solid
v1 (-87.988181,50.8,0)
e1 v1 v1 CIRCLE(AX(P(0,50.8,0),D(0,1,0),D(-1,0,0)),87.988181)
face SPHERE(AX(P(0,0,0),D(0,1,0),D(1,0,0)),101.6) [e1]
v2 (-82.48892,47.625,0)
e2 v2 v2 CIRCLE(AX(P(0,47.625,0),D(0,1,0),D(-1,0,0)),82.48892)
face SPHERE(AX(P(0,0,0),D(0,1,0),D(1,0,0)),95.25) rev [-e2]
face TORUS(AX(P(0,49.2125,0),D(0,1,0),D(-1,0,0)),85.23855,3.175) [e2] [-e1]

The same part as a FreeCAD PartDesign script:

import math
import FreeCAD as App
import Part
import Sketcher
Q = App.Units.Quantity

doc = App.newDocument("Part")
body = doc.addObject("PartDesign::Body", "Body")

# Sketch on XY plane
sketch1 = body.newObject("Sketcher::SketchObject", "Sketch")
sketch1.AttachmentSupport = (doc.getObject("XY_Plane"), [""])
sketch1.MapMode = "FlatFace"
sketch1.addGeometry(Part.LineSegment(App.Vector(0, 101.6, 0), App.Vector(0, 95.25, 0)), False)
sketch1.addGeometry(Part.ArcOfCircle(Part.Circle(App.Vector(0, 0, 0), App.Vector(0, 0, 1), 95.25), math.radians(30), math.radians(90)), False)
sketch1.addGeometry(Part.ArcOfCircle(Part.Circle(App.Vector(85.23855, 49.2125, 0), App.Vector(0, 0, 1), 3.175), math.radians(-150), math.radians(30)), False)
sketch1.addGeometry(Part.ArcOfCircle(Part.Circle(App.Vector(0, 0, 0), App.Vector(0, 0, 1), 101.6), math.radians(30), math.radians(90)), False)
sketch1.addConstraint(Sketcher.Constraint("Coincident", 0, 2, 1, 2))
sketch1.addConstraint(Sketcher.Constraint("Tangent", 1, 1, 2, 1))
sketch1.addConstraint(Sketcher.Constraint("Tangent", 2, 2, 3, 1))
sketch1.addConstraint(Sketcher.Constraint("Coincident", 3, 2, 0, 1))
sketch1.addConstraint(Sketcher.Constraint("Vertical", 0))
sketch1.addConstraint(Sketcher.Constraint("Coincident", 1, 3, -1, 1))
sketch1.addConstraint(Sketcher.Constraint("Coincident", 3, 3, -1, 1))
sketch1.addConstraint(Sketcher.Constraint("PointOnObject", 0, 2, -2))
sketch1.addConstraint(Sketcher.Constraint("Radius", 3, Q("4 in")))
sketch1.addConstraint(Sketcher.Constraint("Radius", 1, Q("3.75 in")))
sketch1.addConstraint(Sketcher.Constraint("DistanceY", -1, 1, 2, 2, Q("2 in")))
revolution = body.newObject("PartDesign::Revolution", "Revolution")
revolution.Profile = sketch1
revolution.ReferenceAxis = (sketch1, ["V_Axis"])
revolution.Angle = 360

doc.recompute()
